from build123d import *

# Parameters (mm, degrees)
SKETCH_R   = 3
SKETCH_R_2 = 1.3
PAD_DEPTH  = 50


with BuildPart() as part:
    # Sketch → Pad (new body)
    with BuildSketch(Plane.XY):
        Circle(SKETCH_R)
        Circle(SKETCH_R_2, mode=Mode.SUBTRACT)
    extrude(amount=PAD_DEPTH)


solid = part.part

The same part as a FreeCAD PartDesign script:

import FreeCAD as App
import Part
import Sketcher

V = App.Vector
Q = App.Units.Quantity

doc = App.newDocument("Part")
params = doc.addObject("Spreadsheet::Sheet", "Params")
for row, (alias, value) in enumerate([
    ("sketch1_diameter", "6 mm"),
    ("sketch1_diameter2", "2.6 mm"),
    ("pad1_length", "50 mm"),
], start=1):
    params.set(f"A{row}", alias)
    params.set(f"B{row}", "=" + value)
    params.setAlias(f"B{row}", alias)

body = doc.addObject("PartDesign::Body", "Body")

# Sketch on XY plane
sketch1 = body.newObject("Sketcher::SketchObject", "Sketch")
sketch1.AttachmentSupport = (doc.getObject("XY_Plane"), [""])
sketch1.MapMode = "FlatFace"
sketch1.addGeometry(Part.Circle(V(0, 0, 0), V(0, 0, 1), 3), False)
sketch1.addGeometry(Part.Circle(V(0, 0, 0), V(0, 0, 1), 1.3), False)
sketch1.addConstraint(Sketcher.Constraint("Coincident", 0, 3, -1, 1))
sketch1.addConstraint(Sketcher.Constraint("Coincident", 1, 3, -1, 1))
sketch1.addConstraint(Sketcher.Constraint("Diameter", 0, Q("6 mm")))
sketch1.addConstraint(Sketcher.Constraint("Diameter", 1, Q("2.6 mm")))
sketch1.setExpression("Constraints[2]", "Params.sketch1_diameter")
sketch1.setExpression("Constraints[3]", "Params.sketch1_diameter2")
pad1 = body.newObject("PartDesign::Pad", "Pad")
pad1.Profile = sketch1
pad1.setExpression("Length", "Params.pad1_length")

doc.recompute()
